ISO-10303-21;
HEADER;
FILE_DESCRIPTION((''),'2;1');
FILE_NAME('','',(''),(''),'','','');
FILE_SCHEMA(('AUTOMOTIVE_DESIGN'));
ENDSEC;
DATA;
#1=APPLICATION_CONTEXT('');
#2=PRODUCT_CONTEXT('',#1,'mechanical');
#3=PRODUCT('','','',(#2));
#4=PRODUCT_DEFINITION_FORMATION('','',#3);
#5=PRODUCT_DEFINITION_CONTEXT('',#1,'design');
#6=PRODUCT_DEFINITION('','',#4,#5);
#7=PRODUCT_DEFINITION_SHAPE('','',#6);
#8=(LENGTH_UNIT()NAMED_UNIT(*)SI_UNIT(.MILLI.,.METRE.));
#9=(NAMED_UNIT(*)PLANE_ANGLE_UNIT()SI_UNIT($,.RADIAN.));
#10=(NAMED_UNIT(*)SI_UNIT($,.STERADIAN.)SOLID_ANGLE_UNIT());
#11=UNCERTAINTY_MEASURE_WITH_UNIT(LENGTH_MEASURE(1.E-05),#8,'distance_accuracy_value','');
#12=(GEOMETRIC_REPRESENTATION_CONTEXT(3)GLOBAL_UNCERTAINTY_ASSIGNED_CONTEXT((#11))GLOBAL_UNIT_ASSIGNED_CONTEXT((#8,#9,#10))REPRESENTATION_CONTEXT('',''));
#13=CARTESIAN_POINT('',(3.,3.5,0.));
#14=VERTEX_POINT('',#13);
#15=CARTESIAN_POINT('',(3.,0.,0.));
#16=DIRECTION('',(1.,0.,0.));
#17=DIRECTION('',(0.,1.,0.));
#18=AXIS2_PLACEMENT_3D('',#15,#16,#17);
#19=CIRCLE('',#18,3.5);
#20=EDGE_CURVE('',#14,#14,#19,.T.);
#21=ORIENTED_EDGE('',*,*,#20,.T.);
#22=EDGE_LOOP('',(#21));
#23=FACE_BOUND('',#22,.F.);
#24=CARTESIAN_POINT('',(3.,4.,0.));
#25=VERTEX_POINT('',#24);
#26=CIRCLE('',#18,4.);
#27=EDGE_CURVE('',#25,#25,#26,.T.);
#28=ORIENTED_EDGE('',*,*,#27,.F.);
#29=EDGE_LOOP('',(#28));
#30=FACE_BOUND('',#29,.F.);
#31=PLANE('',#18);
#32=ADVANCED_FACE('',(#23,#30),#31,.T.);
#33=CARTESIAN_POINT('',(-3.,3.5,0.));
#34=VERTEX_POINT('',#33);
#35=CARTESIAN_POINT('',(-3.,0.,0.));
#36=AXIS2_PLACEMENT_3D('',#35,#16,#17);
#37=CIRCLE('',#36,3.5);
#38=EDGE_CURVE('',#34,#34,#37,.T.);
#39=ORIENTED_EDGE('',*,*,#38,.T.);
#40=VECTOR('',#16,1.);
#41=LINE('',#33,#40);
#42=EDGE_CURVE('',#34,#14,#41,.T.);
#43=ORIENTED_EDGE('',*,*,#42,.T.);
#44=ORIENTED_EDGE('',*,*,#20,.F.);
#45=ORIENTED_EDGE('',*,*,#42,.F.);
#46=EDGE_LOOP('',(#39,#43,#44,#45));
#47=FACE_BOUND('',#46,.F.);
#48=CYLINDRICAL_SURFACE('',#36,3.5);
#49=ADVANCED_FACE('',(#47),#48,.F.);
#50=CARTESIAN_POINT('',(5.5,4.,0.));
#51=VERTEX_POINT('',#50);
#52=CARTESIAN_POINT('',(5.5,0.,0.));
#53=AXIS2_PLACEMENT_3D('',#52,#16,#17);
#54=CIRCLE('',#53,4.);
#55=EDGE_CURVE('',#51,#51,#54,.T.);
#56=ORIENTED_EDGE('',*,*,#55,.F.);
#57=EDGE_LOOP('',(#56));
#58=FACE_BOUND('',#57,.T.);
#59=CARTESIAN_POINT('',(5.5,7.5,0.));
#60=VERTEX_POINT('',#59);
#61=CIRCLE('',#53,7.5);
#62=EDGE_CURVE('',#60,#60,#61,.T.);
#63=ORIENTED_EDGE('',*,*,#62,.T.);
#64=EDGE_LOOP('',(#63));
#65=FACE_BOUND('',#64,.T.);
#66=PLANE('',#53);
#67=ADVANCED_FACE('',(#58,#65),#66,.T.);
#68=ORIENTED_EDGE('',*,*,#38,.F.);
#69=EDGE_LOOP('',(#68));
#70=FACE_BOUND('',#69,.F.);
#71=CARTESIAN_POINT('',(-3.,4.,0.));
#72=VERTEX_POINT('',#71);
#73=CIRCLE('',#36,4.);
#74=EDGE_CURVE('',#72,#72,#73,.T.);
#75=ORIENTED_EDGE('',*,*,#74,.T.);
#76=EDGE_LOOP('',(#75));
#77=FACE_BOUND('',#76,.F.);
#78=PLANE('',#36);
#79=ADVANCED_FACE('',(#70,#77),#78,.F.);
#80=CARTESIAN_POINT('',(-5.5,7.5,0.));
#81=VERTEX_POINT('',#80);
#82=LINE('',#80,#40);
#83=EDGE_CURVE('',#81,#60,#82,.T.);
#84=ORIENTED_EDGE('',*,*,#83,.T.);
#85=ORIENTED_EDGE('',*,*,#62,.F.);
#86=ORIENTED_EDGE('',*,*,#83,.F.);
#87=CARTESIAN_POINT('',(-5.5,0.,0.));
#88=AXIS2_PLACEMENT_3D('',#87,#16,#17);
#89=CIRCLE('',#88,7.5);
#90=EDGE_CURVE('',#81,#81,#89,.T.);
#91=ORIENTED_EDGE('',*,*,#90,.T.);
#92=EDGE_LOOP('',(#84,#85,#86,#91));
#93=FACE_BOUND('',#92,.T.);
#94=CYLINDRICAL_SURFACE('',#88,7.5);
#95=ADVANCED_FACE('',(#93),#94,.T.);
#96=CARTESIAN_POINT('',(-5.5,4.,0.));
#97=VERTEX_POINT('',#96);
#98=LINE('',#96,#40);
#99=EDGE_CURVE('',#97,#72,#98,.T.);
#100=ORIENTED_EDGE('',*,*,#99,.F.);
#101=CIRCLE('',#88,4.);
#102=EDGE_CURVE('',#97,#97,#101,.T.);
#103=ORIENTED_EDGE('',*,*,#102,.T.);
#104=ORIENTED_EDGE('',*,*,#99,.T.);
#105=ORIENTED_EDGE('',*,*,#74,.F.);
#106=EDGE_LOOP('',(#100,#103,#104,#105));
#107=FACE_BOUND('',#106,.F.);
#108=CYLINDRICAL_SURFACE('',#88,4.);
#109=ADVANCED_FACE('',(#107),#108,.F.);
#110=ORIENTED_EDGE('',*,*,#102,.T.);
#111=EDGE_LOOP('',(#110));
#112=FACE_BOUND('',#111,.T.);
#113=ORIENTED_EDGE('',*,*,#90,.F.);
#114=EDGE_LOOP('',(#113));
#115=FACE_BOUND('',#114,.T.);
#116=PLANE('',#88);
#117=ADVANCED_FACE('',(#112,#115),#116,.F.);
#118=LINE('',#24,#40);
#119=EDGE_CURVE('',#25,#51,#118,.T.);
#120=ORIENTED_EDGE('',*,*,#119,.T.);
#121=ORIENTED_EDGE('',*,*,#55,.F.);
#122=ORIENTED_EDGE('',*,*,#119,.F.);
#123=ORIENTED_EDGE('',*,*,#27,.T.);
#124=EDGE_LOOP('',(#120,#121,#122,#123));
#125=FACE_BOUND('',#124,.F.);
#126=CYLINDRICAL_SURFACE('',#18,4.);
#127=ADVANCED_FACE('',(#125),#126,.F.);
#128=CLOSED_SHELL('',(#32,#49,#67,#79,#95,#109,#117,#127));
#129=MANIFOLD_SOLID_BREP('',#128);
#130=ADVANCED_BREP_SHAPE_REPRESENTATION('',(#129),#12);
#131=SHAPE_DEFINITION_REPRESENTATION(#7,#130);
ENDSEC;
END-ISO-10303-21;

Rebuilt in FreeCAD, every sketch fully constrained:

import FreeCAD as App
import Part
import Sketcher


def add_polygon(sketch, points):
    """Adds a closed chain of lines whose ends are joined by coincident constraints."""
    first, n = sketch.GeometryCount, len(points)
    for a, b in zip(points, points[1:] + points[:1]):
        sketch.addGeometry(Part.LineSegment(App.Vector(*a, 0), App.Vector(*b, 0)), False)
    for i in range(n):
        sketch.addConstraint(Sketcher.Constraint("Coincident", first + i, 2, first + (i + 1) % n, 1))

doc = App.newDocument("Part")
body = doc.addObject("PartDesign::Body", "Body")

# Sketch on XY plane
sketch1 = body.newObject("Sketcher::SketchObject", "Sketch")
sketch1.AttachmentSupport = (doc.getObject("XY_Plane"), [""])
sketch1.MapMode = "FlatFace"
add_polygon(sketch1, [(-6, 0), (6, 0), (6, 8), (-6, 8)])  # lines 0-3
sketch1.addConstraint([
    Sketcher.Constraint("Horizontal", 0),
    Sketcher.Constraint("Vertical", 1),
    Sketcher.Constraint("Horizontal", 2),
    Sketcher.Constraint("Vertical", 3),
    Sketcher.Constraint("Symmetric", 0, 2, 3, 2, -1, 1),
    Sketcher.Constraint("DistanceX", 0, 1, 0, 2, 11.0),
    Sketcher.Constraint("DistanceY", 1, 1, 1, 2, 7.5),
])
revolution = body.newObject("PartDesign::Revolution", "Revolution")
revolution.Profile = sketch1
revolution.ReferenceAxis = (sketch1, ["H_Axis"])
revolution.Angle = 360

# Sketch on XY plane
sketch2 = body.newObject("Sketcher::SketchObject", "Sketch001")
sketch2.AttachmentSupport = (doc.getObject("XY_Plane"), [""])
sketch2.MapMode = "FlatFace"
add_polygon(sketch2, [(-5.5, 0), (5.5, 0), (5.5, 4), (3, 4), (3, 3.5), (-3, 3.5), (-3, 4), (-5.5, 4)])  # lines 0-7
sketch2.addConstraint([
    Sketcher.Constraint("Horizontal", 0),
    Sketcher.Constraint("Vertical", 1),
    Sketcher.Constraint("Horizontal", 2),
    Sketcher.Constraint("Vertical", 3),
    Sketcher.Constraint("Horizontal", 4),
    Sketcher.Constraint("Vertical", 5),
    Sketcher.Constraint("Horizontal", 6),
    Sketcher.Constraint("Vertical", 7),
    Sketcher.Constraint("Symmetric", 0, 2, 7, 2, -1, 1),
    Sketcher.Constraint("Symmetric", 2, 2, 5, 2, -2),
    Sketcher.Constraint("DistanceX", 0, 1, 0, 2, 11.0),
    Sketcher.Constraint("DistanceX", 4, 2, 4, 1, 6.0),
    Sketcher.Constraint("DistanceY", 1, 1, 1, 2, 4.0),
    Sketcher.Constraint("DistanceY", 3, 2, 3, 1, 0.5),
])
groove = body.newObject("PartDesign::Groove", "Groove")
groove.Profile = sketch2
groove.ReferenceAxis = (sketch2, ["H_Axis"])
groove.Angle = 360

doc.recompute()
